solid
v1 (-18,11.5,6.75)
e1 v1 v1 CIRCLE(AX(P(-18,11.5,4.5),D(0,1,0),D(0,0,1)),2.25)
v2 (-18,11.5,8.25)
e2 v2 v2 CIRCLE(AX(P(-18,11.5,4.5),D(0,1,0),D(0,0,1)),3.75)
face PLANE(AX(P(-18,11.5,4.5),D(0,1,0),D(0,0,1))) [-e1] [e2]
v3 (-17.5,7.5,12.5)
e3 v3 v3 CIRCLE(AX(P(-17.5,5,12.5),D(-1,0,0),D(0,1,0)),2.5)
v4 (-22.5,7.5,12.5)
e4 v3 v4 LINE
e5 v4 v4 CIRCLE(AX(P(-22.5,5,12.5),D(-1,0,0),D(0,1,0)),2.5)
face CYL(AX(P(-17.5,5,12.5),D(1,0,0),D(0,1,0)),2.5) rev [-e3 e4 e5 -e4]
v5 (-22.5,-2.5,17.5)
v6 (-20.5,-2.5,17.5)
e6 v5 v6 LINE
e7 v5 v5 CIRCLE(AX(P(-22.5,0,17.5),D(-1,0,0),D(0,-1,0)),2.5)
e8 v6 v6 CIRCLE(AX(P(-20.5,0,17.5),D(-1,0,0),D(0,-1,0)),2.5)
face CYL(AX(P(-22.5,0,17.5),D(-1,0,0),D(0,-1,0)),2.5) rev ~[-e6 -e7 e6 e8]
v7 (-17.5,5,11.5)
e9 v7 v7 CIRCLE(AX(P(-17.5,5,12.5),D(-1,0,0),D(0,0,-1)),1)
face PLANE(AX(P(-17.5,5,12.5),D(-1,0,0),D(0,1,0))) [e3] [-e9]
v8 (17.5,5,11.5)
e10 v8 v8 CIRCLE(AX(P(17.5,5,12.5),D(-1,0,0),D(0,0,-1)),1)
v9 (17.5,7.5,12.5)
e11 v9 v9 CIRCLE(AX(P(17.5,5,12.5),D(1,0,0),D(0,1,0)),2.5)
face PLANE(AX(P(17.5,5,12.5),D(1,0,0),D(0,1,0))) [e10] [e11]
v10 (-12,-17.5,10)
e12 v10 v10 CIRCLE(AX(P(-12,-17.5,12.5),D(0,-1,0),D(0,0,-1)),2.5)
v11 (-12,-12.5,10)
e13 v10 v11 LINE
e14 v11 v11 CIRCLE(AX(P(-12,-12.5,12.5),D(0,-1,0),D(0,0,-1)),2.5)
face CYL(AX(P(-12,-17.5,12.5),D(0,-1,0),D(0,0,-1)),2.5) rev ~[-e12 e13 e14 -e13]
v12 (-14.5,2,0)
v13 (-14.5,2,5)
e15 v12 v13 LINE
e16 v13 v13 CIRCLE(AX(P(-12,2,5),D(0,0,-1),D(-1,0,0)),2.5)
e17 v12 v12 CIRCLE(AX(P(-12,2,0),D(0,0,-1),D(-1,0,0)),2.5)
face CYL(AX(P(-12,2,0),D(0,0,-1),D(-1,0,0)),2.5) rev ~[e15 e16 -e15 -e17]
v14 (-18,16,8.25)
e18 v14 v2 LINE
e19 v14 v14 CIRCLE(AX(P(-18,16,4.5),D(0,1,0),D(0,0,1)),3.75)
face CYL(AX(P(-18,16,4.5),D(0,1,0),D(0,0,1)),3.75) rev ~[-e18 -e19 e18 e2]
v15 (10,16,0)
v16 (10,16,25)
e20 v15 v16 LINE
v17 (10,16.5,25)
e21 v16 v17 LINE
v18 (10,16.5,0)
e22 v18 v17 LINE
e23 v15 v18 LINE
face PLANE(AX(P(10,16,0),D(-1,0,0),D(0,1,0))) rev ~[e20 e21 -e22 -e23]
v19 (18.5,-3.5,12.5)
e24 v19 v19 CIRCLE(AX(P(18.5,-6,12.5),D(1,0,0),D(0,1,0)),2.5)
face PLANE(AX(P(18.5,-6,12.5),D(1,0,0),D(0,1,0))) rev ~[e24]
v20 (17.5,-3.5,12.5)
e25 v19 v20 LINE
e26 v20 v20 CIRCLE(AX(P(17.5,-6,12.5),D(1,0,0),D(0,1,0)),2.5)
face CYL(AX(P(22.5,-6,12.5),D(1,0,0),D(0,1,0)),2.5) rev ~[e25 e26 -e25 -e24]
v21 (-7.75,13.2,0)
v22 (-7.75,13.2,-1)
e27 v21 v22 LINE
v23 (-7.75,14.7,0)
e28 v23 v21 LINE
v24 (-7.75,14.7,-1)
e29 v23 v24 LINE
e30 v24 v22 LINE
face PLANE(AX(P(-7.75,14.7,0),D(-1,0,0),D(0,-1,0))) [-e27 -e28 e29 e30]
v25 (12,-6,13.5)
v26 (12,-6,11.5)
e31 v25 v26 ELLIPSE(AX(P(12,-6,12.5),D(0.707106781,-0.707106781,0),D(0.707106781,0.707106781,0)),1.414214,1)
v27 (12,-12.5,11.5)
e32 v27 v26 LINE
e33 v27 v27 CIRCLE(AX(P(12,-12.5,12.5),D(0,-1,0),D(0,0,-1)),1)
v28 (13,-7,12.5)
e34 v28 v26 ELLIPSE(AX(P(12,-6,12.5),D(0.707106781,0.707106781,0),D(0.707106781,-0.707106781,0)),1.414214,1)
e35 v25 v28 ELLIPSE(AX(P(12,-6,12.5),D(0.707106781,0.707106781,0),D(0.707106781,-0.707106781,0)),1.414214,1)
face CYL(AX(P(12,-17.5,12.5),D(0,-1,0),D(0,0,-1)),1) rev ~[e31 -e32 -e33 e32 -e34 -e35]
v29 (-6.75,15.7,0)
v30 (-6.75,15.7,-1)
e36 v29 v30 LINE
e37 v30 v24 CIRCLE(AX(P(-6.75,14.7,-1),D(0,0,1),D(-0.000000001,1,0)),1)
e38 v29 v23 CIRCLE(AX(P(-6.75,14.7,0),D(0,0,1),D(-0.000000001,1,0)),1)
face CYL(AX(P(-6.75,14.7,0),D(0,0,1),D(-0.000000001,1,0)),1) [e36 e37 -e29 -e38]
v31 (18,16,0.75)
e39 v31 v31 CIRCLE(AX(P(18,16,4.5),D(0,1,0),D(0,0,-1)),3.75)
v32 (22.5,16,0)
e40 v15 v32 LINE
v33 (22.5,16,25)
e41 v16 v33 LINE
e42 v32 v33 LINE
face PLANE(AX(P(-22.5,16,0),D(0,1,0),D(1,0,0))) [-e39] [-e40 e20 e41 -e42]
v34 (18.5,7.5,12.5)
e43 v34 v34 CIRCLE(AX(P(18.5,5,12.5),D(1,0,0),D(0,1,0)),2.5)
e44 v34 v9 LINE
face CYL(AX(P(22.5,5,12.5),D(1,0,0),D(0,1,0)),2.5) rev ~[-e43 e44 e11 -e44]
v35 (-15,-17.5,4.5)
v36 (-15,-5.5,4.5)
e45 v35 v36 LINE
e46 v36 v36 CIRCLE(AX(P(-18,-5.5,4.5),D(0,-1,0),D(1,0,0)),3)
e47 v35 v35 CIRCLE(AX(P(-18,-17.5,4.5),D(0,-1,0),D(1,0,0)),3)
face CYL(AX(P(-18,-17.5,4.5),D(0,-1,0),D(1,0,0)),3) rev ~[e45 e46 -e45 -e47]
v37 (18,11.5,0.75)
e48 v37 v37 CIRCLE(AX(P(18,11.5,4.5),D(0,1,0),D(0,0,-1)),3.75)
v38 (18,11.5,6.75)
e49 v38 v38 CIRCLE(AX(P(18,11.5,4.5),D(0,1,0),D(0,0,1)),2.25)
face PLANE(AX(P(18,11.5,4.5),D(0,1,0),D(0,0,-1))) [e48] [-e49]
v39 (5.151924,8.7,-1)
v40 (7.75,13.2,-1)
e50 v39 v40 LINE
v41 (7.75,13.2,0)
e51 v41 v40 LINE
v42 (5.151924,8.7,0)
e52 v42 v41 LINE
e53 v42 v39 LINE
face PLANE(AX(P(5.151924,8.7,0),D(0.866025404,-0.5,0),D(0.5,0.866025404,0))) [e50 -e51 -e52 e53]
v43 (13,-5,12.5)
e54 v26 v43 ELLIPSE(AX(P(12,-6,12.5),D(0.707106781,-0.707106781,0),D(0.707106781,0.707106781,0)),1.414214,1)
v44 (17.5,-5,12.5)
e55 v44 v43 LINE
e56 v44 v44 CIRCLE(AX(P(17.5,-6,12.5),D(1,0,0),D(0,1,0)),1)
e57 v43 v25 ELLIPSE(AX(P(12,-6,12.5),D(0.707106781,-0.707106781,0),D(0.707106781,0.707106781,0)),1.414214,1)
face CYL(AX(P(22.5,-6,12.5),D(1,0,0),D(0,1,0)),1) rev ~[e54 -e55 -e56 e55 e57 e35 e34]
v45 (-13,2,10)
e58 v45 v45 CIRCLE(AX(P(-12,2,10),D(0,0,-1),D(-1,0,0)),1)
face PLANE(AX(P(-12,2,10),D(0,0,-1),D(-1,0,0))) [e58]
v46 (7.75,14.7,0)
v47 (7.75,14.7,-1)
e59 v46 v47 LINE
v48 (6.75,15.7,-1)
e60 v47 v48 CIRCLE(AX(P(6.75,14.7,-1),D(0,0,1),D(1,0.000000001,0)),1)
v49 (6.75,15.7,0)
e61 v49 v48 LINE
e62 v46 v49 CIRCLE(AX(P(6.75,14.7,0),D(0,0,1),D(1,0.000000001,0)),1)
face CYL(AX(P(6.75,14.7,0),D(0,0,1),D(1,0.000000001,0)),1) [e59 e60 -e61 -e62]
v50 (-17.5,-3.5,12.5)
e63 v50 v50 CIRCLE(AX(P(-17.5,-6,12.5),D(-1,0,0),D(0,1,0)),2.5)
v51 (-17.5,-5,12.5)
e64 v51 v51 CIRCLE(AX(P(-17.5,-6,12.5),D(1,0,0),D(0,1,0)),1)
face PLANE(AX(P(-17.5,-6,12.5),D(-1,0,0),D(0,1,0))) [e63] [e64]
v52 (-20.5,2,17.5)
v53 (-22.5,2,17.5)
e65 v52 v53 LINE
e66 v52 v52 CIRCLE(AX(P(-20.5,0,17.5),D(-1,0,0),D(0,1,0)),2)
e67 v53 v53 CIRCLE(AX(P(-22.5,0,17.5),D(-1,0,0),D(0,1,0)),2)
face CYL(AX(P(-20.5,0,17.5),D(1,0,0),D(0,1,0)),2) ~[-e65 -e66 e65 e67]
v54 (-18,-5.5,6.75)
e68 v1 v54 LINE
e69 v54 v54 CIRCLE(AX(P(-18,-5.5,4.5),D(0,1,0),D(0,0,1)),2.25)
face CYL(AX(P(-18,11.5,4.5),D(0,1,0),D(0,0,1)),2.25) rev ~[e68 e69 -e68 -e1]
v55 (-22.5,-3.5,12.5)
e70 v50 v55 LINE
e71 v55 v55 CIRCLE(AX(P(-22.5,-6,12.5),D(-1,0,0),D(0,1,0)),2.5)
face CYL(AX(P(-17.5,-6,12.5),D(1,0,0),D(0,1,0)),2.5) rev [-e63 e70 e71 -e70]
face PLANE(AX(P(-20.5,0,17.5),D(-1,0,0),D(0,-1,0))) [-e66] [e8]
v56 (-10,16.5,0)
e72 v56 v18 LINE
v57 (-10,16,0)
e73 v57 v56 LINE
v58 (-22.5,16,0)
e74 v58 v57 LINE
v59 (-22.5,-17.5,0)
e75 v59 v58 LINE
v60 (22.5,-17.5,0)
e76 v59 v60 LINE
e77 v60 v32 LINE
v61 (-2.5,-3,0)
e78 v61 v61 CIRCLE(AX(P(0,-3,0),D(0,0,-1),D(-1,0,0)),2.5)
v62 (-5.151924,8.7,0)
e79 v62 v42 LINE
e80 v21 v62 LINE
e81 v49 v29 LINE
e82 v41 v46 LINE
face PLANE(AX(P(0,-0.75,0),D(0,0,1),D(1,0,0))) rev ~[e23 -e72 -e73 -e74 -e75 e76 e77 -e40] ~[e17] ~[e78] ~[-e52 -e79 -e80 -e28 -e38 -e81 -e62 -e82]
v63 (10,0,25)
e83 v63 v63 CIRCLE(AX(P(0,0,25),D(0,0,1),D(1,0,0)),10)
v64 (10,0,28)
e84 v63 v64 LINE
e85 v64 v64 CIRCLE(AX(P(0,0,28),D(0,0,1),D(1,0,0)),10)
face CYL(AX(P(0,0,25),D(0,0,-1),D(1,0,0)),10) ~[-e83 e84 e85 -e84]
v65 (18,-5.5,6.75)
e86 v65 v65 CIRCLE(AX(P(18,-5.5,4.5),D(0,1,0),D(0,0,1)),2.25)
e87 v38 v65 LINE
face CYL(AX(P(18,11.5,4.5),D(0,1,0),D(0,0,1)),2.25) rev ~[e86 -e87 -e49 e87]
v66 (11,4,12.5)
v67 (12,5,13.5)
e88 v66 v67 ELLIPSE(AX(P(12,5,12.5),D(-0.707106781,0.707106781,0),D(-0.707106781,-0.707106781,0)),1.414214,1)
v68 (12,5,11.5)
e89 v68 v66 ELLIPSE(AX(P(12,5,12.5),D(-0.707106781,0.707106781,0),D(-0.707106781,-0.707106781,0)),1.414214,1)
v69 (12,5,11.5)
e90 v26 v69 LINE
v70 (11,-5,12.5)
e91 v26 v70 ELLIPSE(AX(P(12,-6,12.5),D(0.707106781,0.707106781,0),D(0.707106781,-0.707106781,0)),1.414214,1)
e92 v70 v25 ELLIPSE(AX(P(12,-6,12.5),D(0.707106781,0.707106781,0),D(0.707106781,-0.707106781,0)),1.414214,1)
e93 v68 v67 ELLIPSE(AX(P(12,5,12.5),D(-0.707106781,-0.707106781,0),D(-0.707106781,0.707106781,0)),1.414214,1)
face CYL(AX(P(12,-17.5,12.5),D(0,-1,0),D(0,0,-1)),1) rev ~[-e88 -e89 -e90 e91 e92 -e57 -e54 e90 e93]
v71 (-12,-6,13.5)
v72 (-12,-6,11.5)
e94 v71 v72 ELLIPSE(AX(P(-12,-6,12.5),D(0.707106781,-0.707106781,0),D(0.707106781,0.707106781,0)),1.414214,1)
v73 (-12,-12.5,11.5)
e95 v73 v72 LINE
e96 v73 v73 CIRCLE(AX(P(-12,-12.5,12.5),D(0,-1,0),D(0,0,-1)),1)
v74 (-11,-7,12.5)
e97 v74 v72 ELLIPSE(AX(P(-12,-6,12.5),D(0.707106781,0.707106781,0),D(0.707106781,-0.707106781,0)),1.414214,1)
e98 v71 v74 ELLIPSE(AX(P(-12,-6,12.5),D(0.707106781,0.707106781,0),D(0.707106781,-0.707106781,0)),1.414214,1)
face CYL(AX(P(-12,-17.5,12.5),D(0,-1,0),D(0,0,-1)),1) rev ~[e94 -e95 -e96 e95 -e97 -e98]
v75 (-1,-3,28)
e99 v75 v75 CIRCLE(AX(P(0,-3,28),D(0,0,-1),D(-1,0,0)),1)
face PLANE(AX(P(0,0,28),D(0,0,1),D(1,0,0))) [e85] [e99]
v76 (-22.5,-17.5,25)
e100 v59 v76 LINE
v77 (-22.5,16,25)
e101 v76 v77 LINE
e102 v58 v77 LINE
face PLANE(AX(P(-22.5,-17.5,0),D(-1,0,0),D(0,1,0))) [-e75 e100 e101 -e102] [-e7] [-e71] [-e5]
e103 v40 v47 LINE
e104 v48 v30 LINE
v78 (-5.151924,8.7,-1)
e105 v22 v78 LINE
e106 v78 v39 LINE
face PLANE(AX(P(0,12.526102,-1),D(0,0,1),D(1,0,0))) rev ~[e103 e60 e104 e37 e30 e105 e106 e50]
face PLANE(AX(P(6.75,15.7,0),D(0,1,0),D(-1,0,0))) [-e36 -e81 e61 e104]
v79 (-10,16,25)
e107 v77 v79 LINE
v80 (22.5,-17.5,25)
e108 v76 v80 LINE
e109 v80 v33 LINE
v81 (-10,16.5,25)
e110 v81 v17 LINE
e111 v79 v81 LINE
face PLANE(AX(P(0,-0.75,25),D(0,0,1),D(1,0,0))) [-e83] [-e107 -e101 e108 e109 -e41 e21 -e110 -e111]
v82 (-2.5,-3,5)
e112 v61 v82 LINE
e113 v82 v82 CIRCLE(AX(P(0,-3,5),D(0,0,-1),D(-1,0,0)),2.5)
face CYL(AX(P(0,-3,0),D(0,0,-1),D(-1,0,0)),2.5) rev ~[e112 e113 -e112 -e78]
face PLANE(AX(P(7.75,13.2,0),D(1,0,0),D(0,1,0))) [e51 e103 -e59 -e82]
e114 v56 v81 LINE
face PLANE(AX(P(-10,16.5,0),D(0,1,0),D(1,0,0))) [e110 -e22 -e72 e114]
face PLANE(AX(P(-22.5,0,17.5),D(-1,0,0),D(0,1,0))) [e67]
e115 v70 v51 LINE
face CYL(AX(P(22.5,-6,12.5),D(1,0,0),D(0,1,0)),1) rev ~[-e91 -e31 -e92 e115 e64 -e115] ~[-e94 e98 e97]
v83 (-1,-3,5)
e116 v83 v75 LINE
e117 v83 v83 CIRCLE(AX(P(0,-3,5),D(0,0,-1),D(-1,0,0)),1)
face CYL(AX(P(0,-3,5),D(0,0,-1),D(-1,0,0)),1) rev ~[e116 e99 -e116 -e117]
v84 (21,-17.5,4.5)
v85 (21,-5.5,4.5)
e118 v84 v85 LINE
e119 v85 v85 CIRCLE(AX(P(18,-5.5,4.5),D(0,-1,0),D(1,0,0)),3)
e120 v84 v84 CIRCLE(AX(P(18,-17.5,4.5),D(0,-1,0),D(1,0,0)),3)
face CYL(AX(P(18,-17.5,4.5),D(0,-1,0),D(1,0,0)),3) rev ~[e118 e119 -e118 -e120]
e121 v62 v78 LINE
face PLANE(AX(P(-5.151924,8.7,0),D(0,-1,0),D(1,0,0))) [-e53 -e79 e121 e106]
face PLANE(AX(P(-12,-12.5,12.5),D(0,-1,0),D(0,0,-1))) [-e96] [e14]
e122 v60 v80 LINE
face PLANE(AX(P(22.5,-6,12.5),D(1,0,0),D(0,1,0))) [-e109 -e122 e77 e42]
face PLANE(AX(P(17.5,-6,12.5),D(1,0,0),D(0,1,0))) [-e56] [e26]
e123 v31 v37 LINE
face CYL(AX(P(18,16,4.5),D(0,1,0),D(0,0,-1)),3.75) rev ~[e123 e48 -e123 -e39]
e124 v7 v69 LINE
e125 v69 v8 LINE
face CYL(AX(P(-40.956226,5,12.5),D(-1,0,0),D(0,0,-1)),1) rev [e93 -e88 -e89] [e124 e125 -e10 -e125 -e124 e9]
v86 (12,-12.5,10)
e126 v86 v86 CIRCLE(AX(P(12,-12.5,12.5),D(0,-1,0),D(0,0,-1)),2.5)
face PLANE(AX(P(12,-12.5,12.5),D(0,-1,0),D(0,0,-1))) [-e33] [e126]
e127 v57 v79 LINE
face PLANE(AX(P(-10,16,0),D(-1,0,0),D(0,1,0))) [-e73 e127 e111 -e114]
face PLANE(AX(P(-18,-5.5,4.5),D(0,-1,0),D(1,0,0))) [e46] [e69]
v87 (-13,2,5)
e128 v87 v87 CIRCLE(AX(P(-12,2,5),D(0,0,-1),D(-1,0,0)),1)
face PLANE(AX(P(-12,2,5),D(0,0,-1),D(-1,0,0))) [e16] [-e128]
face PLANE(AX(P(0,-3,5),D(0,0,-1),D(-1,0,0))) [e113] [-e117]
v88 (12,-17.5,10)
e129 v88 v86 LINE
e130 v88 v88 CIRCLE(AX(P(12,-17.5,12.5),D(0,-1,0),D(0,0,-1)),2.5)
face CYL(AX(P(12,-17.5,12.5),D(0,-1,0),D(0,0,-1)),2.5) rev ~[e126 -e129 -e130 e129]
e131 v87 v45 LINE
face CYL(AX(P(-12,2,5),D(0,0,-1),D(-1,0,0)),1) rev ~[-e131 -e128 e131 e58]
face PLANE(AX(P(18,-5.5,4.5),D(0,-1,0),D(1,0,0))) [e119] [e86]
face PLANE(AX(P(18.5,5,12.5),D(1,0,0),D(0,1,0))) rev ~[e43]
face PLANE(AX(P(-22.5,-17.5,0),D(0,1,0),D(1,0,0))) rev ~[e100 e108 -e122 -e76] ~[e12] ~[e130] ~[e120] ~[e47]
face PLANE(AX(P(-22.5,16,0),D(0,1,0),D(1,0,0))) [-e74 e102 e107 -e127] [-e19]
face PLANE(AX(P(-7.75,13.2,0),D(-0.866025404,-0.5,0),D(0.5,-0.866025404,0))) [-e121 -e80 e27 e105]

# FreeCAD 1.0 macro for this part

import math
import FreeCAD as App
import Part
import Sketcher
Q = App.Units.Quantity

doc = App.newDocument("Part")
body = doc.addObject("PartDesign::Body", "Body")

sketch1 = body.newObject("Sketcher::SketchObject", "Sketch")
sketch1.AttachmentSupport = (doc.getObject("XY_Plane"), [""])
sketch1.MapMode = "FlatFace"
sketch1.addGeometry(Part.LineSegment(App.Vector(-22.5, 16, 0), App.Vector(-22.5, -17.5, 0)), False)
sketch1.addGeometry(Part.LineSegment(App.Vector(-22.5, -17.5, 0), App.Vector(22.5, -17.5, 0)), False)
sketch1.addGeometry(Part.LineSegment(App.Vector(22.5, -17.5, 0), App.Vector(22.5, 16, 0)), False)
sketch1.addGeometry(Part.LineSegment(App.Vector(22.5, 16, 0), App.Vector(-22.5, 16, 0)), False)
sketch1.addConstraint(Sketcher.Constraint("Coincident", 0, 2, 1, 1))
sketch1.addConstraint(Sketcher.Constraint("Coincident", 1, 2, 2, 1))
sketch1.addConstraint(Sketcher.Constraint("Coincident", 2, 2, 3, 1))
sketch1.addConstraint(Sketcher.Constraint("Coincident", 3, 2, 0, 1))
sketch1.addConstraint(Sketcher.Constraint("Vertical", 0))
sketch1.addConstraint(Sketcher.Constraint("Horizontal", 1))
sketch1.addConstraint(Sketcher.Constraint("Vertical", 2))
sketch1.addConstraint(Sketcher.Constraint("Horizontal", 3))
sketch1.addConstraint(Sketcher.Constraint("DistanceX", 1, 1, 1, 2, Q("45 mm")))
sketch1.addConstraint(Sketcher.Constraint("DistanceY", 0, 2, 0, 1, Q("33.5 mm")))
sketch1.addConstraint(Sketcher.Constraint("DistanceY", -1, 1, 2, 2, Q("16 mm")))
sketch1.addConstraint(Sketcher.Constraint("DistanceX", 0, 2, -1, 1, Q("22.5 mm")))
pad1 = body.newObject("PartDesign::Pad", "Pad")
pad1.Profile = sketch1
pad1.Length = 25

sketch2 = body.newObject("Sketcher::SketchObject", "Sketch001")
sketch2.AttachmentSupport = (doc.getObject("XY_Plane"), [""])
sketch2.MapMode = "FlatFace"
sketch2.addGeometry(Part.LineSegment(App.Vector(-10, 16.5, 0), App.Vector(-10, 16, 0)), False)
sketch2.addGeometry(Part.LineSegment(App.Vector(-10, 16, 0), App.Vector(10, 16, 0)), False)
sketch2.addGeometry(Part.LineSegment(App.Vector(10, 16, 0), App.Vector(10, 16.5, 0)), False)
sketch2.addGeometry(Part.LineSegment(App.Vector(10, 16.5, 0), App.Vector(-10, 16.5, 0)), False)
sketch2.addConstraint(Sketcher.Constraint("Coincident", 0, 2, 1, 1))
sketch2.addConstraint(Sketcher.Constraint("Coincident", 1, 2, 2, 1))
sketch2.addConstraint(Sketcher.Constraint("Coincident", 2, 2, 3, 1))
sketch2.addConstraint(Sketcher.Constraint("Coincident", 3, 2, 0, 1))
sketch2.addConstraint(Sketcher.Constraint("Vertical", 0))
sketch2.addConstraint(Sketcher.Constraint("Horizontal", 1))
sketch2.addConstraint(Sketcher.Constraint("Vertical", 2))
sketch2.addConstraint(Sketcher.Constraint("Horizontal", 3))
sketch2.addConstraint(Sketcher.Constraint("DistanceX", 1, 1, 1, 2, Q("20 mm")))
sketch2.addConstraint(Sketcher.Constraint("DistanceY", 0, 2, 0, 1, Q("0.5 mm")))
sketch2.addConstraint(Sketcher.Constraint("DistanceX", 0, 2, -1, 1, Q("10 mm")))
sketch2.addConstraint(Sketcher.Constraint("DistanceY", -1, 1, 0, 2, Q("16 mm")))
pad2 = body.newObject("PartDesign::Pad", "Pad001")
pad2.Profile = sketch2
pad2.Length = 25

sketch3 = body.newObject("Sketcher::SketchObject", "Sketch002")
sketch3.AttachmentSupport = (doc.getObject("XY_Plane"), [""])
sketch3.MapMode = "FlatFace"
sketch3.AttachmentOffset = App.Placement(App.Vector(0, 0, 25), App.Rotation())
sketch3.addGeometry(Part.Circle(App.Vector(0, 0, 0), App.Vector(0, 0, 1), 10), False)
sketch3.addConstraint(Sketcher.Constraint("Coincident", 0, 3, -1, 1))
sketch3.addConstraint(Sketcher.Constraint("Diameter", 0, Q("20 mm")))
pad3 = body.newObject("PartDesign::Pad", "Pad002")
pad3.Profile = sketch3
pad3.Length = 3

sketch4 = body.newObject("Sketcher::SketchObject", "Sketch003")
sketch4.AttachmentSupport = (doc.getObject("XZ_Plane"), [""])
sketch4.MapMode = "FlatFace"
sketch4.AttachmentOffset = App.Placement(App.Vector(0, 0, -16), App.Rotation())
sketch4.addGeometry(Part.Circle(App.Vector(-18, 4.5, 0), App.Vector(0, 0, 1), 3.75), False)
sketch4.addGeometry(Part.Circle(App.Vector(18, 4.5, 0), App.Vector(0, 0, 1), 3.75), False)
sketch4.addConstraint(Sketcher.Constraint("Equal", 0, 1))
sketch4.addConstraint(Sketcher.Constraint("Symmetric", 0, 3, 1, 3, -2))
sketch4.addConstraint(Sketcher.Constraint("Diameter", 0, Q("7.5 mm")))
sketch4.addConstraint(Sketcher.Constraint("DistanceX", 0, 3, -1, 1, Q("18 mm")))
sketch4.addConstraint(Sketcher.Constraint("DistanceY", -1, 1, 0, 3, Q("4.5 mm")))
pocket1 = body.newObject("PartDesign::Pocket", "Pocket")
pocket1.Profile = sketch4
pocket1.Length = 4.5
pocket1.Reversed = True

sketch5 = body.newObject("Sketcher::SketchObject", "Sketch004")
sketch5.AttachmentSupport = (doc.getObject("XZ_Plane"), [""])
sketch5.MapMode = "FlatFace"
sketch5.AttachmentOffset = App.Placement(App.Vector(0, 0, -11.5), App.Rotation())
sketch5.addGeometry(Part.Circle(App.Vector(18, 4.5, 0), App.Vector(0, 0, 1), 2.25), False)
sketch5.addGeometry(Part.Circle(App.Vector(-18, 4.5, 0), App.Vector(0, 0, 1), 2.25), False)
sketch5.addConstraint(Sketcher.Constraint("Equal", 0, 1))
sketch5.addConstraint(Sketcher.Constraint("Symmetric", 0, 3, 1, 3, -2))
sketch5.addConstraint(Sketcher.Constraint("Diameter", 0, Q("4.5 mm")))
sketch5.addConstraint(Sketcher.Constraint("DistanceX", -1, 1, 0, 3, Q("18 mm")))
sketch5.addConstraint(Sketcher.Constraint("DistanceY", -1, 1, 0, 3, Q("4.5 mm")))
pocket2 = body.newObject("PartDesign::Pocket", "Pocket001")
pocket2.Profile = sketch5
pocket2.Type = "ThroughAll"
pocket2.Reversed = True

sketch6 = body.newObject("Sketcher::SketchObject", "Sketch005")
sketch6.AttachmentSupport = (doc.getObject("YZ_Plane"), [""])
sketch6.MapMode = "FlatFace"
sketch6.addGeometry(Part.Circle(App.Vector(5, 12.5, 0), App.Vector(0, 0, 1), 1), False)
sketch6.addConstraint(Sketcher.Constraint("Diameter", 0, Q("2 mm")))
sketch6.addConstraint(Sketcher.Constraint("DistanceX", -1, 1, 0, 3, Q("5 mm")))
sketch6.addConstraint(Sketcher.Constraint("DistanceY", -1, 1, 0, 3, Q("12.5 mm")))
pocket3 = body.newObject("PartDesign::Pocket", "Pocket002")
pocket3.Profile = sketch6
pocket3.Type = "ThroughAll"
pocket3.Midplane = True

sketch7 = body.newObject("Sketcher::SketchObject", "Sketch006")
sketch7.AttachmentSupport = (doc.getObject("YZ_Plane"), [""])
sketch7.MapMode = "FlatFace"
sketch7.AttachmentOffset = App.Placement(App.Vector(0, 0, 22.5), App.Rotation())
sketch7.addGeometry(Part.Circle(App.Vector(-6, 12.5, 0), App.Vector(0, 0, 1), 1), False)
sketch7.addConstraint(Sketcher.Constraint("Diameter", 0, Q("2 mm")))
sketch7.addConstraint(Sketcher.Constraint("DistanceX", 0, 3, -1, 1, Q("6 mm")))
sketch7.addConstraint(Sketcher.Constraint("DistanceY", -1, 1, 0, 3, Q("12.5 mm")))
pocket4 = body.newObject("PartDesign::Pocket", "Pocket003")
pocket4.Profile = sketch7
pocket4.Type = "ThroughAll"

sketch8 = body.newObject("Sketcher::SketchObject", "Sketch007")
sketch8.AttachmentSupport = (doc.getObject("YZ_Plane"), [""])
sketch8.MapMode = "FlatFace"
sketch8.AttachmentOffset = App.Placement(App.Vector(0, 0, 22.5), App.Rotation())
sketch8.addGeometry(Part.Circle(App.Vector(5, 12.5, 0), App.Vector(0, 0, 1), 2.5), False)
sketch8.addConstraint(Sketcher.Constraint("Diameter", 0, Q("5 mm")))
sketch8.addConstraint(Sketcher.Constraint("DistanceX", -1, 1, 0, 3, Q("5 mm")))
sketch8.addConstraint(Sketcher.Constraint("DistanceY", -1, 1, 0, 3, Q("12.5 mm")))
pocket5 = body.newObject("PartDesign::Pocket", "Pocket004")
pocket5.Profile = sketch8
pocket5.Length = 5

sketch9 = body.newObject("Sketcher::SketchObject", "Sketch008")
sketch9.AttachmentSupport = (doc.getObject("YZ_Plane"), [""])
sketch9.MapMode = "FlatFace"
sketch9.AttachmentOffset = App.Placement(App.Vector(0, 0, -17.5), App.Rotation())
sketch9.addGeometry(Part.Circle(App.Vector(5, 12.5, 0), App.Vector(0, 0, 1), 2.5), False)
sketch9.addConstraint(Sketcher.Constraint("Diameter", 0, Q("5 mm")))
sketch9.addConstraint(Sketcher.Constraint("DistanceX", -1, 1, 0, 3, Q("5 mm")))
sketch9.addConstraint(Sketcher.Constraint("DistanceY", -1, 1, 0, 3, Q("12.5 mm")))
pocket6 = body.newObject("PartDesign::Pocket", "Pocket005")
pocket6.Profile = sketch9
pocket6.Length = 5

sketch10 = body.newObject("Sketcher::SketchObject", "Sketch009")
sketch10.AttachmentSupport = (doc.getObject("YZ_Plane"), [""])
sketch10.MapMode = "FlatFace"
sketch10.AttachmentOffset = App.Placement(App.Vector(0, 0, 22.5), App.Rotation())
sketch10.addGeometry(Part.Circle(App.Vector(-6, 12.5, 0), App.Vector(0, 0, 1), 2.5), False)
sketch10.addConstraint(Sketcher.Constraint("Diameter", 0, Q("5 mm")))
sketch10.addConstraint(Sketcher.Constraint("DistanceX", 0, 3, -1, 1, Q("6 mm")))
sketch10.addConstraint(Sketcher.Constraint("DistanceY", -1, 1, 0, 3, Q("12.5 mm")))
pocket7 = body.newObject("PartDesign::Pocket", "Pocket006")
pocket7.Profile = sketch10
pocket7.Length = 5

sketch11 = body.newObject("Sketcher::SketchObject", "Sketch010")
sketch11.AttachmentSupport = (doc.getObject("YZ_Plane"), [""])
sketch11.MapMode = "FlatFace"
sketch11.AttachmentOffset = App.Placement(App.Vector(0, 0, -17.5), App.Rotation())
sketch11.addGeometry(Part.Circle(App.Vector(-6, 12.5, 0), App.Vector(0, 0, 1), 2.5), False)
sketch11.addConstraint(Sketcher.Constraint("Diameter", 0, Q("5 mm")))
sketch11.addConstraint(Sketcher.Constraint("DistanceX", 0, 3, -1, 1, Q("6 mm")))
sketch11.addConstraint(Sketcher.Constraint("DistanceY", -1, 1, 0, 3, Q("12.5 mm")))
pocket8 = body.newObject("PartDesign::Pocket", "Pocket007")
pocket8.Profile = sketch11
pocket8.Length = 5

sketch12 = body.newObject("Sketcher::SketchObject", "Sketch011")
sketch12.AttachmentSupport = (doc.getObject("YZ_Plane"), [""])
sketch12.MapMode = "FlatFace"
sketch12.AttachmentOffset = App.Placement(App.Vector(0, 0, -22.5), App.Rotation())
sketch12.addGeometry(Part.Circle(App.Vector(0, 17.5, 0), App.Vector(0, 0, 1), 2.5), False)
sketch12.addConstraint(Sketcher.Constraint("PointOnObject", 0, 3, -2))
sketch12.addConstraint(Sketcher.Constraint("Diameter", 0, Q("5 mm")))
sketch12.addConstraint(Sketcher.Constraint("DistanceY", -1, 1, 0, 3, Q("17.5 mm")))
pocket9 = body.newObject("PartDesign::Pocket", "Pocket008")
pocket9.Profile = sketch12
pocket9.Length = 2
pocket9.Reversed = True

sketch13 = body.newObject("Sketcher::SketchObject", "Sketch012")
sketch13.AttachmentSupport = (doc.getObject("YZ_Plane"), [""])
sketch13.MapMode = "FlatFace"
sketch13.AttachmentOffset = App.Placement(App.Vector(0, 0, -20.5), App.Rotation())
sketch13.addGeometry(Part.Circle(App.Vector(0, 17.5, 0), App.Vector(0, 0, 1), 2), False)
sketch13.addConstraint(Sketcher.Constraint("PointOnObject", 0, 3, -2))
sketch13.addConstraint(Sketcher.Constraint("Diameter", 0, Q("4 mm")))
sketch13.addConstraint(Sketcher.Constraint("DistanceY", -1, 1, 0, 3, Q("17.5 mm")))
pad4 = body.newObject("PartDesign::Pad", "Pad003")
pad4.Profile = sketch13
pad4.Length = 2
pad4.Reversed = True

sketch14 = body.newObject("Sketcher::SketchObject", "Sketch013")
sketch14.AttachmentSupport = (doc.getObject("YZ_Plane"), [""])
sketch14.MapMode = "FlatFace"
sketch14.AttachmentOffset = App.Placement(App.Vector(0, 0, 22.5), App.Rotation())
sketch14.addGeometry(Part.Circle(App.Vector(5, 12.5, 0), App.Vector(0, 0, 1), 2.5), False)
sketch14.addConstraint(Sketcher.Constraint("Diameter", 0, Q("5 mm")))
sketch14.addConstraint(Sketcher.Constraint("DistanceX", -1, 1, 0, 3, Q("5 mm")))
sketch14.addConstraint(Sketcher.Constraint("DistanceY", -1, 1, 0, 3, Q("12.5 mm")))
pad5 = body.newObject("PartDesign::Pad", "Pad004")
pad5.Profile = sketch14
pad5.Length = 4
pad5.Reversed = True

sketch15 = body.newObject("Sketcher::SketchObject", "Sketch014")
sketch15.AttachmentSupport = (doc.getObject("YZ_Plane"), [""])
sketch15.MapMode = "FlatFace"
sketch15.AttachmentOffset = App.Placement(App.Vector(0, 0, 22.5), App.Rotation())
sketch15.addGeometry(Part.Circle(App.Vector(-6, 12.5, 0), App.Vector(0, 0, 1), 2.5), False)
sketch15.addConstraint(Sketcher.Constraint("Diameter", 0, Q("5 mm")))
sketch15.addConstraint(Sketcher.Constraint("DistanceX", 0, 3, -1, 1, Q("6 mm")))
sketch15.addConstraint(Sketcher.Constraint("DistanceY", -1, 1, 0, 3, Q("12.5 mm")))
pad6 = body.newObject("PartDesign::Pad", "Pad005")
pad6.Profile = sketch15
pad6.Length = 4
pad6.Reversed = True

sketch16 = body.newObject("Sketcher::SketchObject", "Sketch015")
sketch16.AttachmentSupport = (doc.getObject("XY_Plane"), [""])
sketch16.MapMode = "FlatFace"
sketch16.addGeometry(Part.Circle(App.Vector(0, -3, 0), App.Vector(0, 0, 1), 2.5), False)
sketch16.addConstraint(Sketcher.Constraint("PointOnObject", 0, 3, -2))
sketch16.addConstraint(Sketcher.Constraint("Diameter", 0, Q("5 mm")))
sketch16.addConstraint(Sketcher.Constraint("DistanceY", 0, 3, -1, 1, Q("3 mm")))
pocket10 = body.newObject("PartDesign::Pocket", "Pocket009")
pocket10.Profile = sketch16
pocket10.Length = 5
pocket10.Reversed = True

sketch17 = body.newObject("Sketcher::SketchObject", "Sketch016")
sketch17.AttachmentSupport = (doc.getObject("XY_Plane"), [""])
sketch17.MapMode = "FlatFace"
sketch17.AttachmentOffset = App.Placement(App.Vector(0, 0, 5), App.Rotation())
sketch17.addGeometry(Part.Circle(App.Vector(0, -3, 0), App.Vector(0, 0, 1), 1), False)
sketch17.addConstraint(Sketcher.Constraint("PointOnObject", 0, 3, -2))
sketch17.addConstraint(Sketcher.Constraint("Diameter", 0, Q("2 mm")))
sketch17.addConstraint(Sketcher.Constraint("DistanceY", 0, 3, -1, 1, Q("3 mm")))
pocket11 = body.newObject("PartDesign::Pocket", "Pocket010")
pocket11.Profile = sketch17
pocket11.Type = "ThroughAll"
pocket11.Reversed = True

sketch18 = body.newObject("Sketcher::SketchObject", "Sketch017")
sketch18.AttachmentSupport = (doc.getObject("XY_Plane"), [""])
sketch18.MapMode = "FlatFace"
sketch18.addGeometry(Part.Circle(App.Vector(-12, 2, 0), App.Vector(0, 0, 1), 2.5), False)
sketch18.addConstraint(Sketcher.Constraint("Diameter", 0, Q("5 mm")))
sketch18.addConstraint(Sketcher.Constraint("DistanceX", 0, 3, -1, 1, Q("12 mm")))
sketch18.addConstraint(Sketcher.Constraint("DistanceY", -1, 1, 0, 3, Q("2 mm")))
pocket12 = body.newObject("PartDesign::Pocket", "Pocket011")
pocket12.Profile = sketch18
pocket12.Length = 5
pocket12.Reversed = True

sketch19 = body.newObject("Sketcher::SketchObject", "Sketch018")
sketch19.AttachmentSupport = (doc.getObject("XY_Plane"), [""])
sketch19.MapMode = "FlatFace"
sketch19.AttachmentOffset = App.Placement(App.Vector(0, 0, 5), App.Rotation())
sketch19.addGeometry(Part.Circle(App.Vector(-12, 2, 0), App.Vector(0, 0, 1), 1), False)
sketch19.addConstraint(Sketcher.Constraint("Diameter", 0, Q("2 mm")))
sketch19.addConstraint(Sketcher.Constraint("DistanceX", 0, 3, -1, 1, Q("12 mm")))
sketch19.addConstraint(Sketcher.Constraint("DistanceY", -1, 1, 0, 3, Q("2 mm")))
pocket13 = body.newObject("PartDesign::Pocket", "Pocket012")
pocket13.Profile = sketch19
pocket13.Length = 5
pocket13.Reversed = True

sketch20 = body.newObject("Sketcher::SketchObject", "Sketch019")
sketch20.AttachmentSupport = (doc.getObject("XY_Plane"), [""])
sketch20.MapMode = "FlatFace"
sketch20.addGeometry(Part.LineSegment(App.Vector(-6.75, 15.7, 0), App.Vector(6.75, 15.7, 0)), False)
sketch20.addGeometry(Part.ArcOfCircle(Part.Circle(App.Vector(6.75, 14.7, 0), App.Vector(0, 0, 1), 1), math.radians(0), math.radians(90)), False)
sketch20.addGeometry(Part.LineSegment(App.Vector(7.75, 14.7, 0), App.Vector(7.75, 13.2, 0)), False)
sketch20.addGeometry(Part.LineSegment(App.Vector(7.75, 13.2, 0), App.Vector(5.151924, 8.7, 0)), False)
sketch20.addGeometry(Part.LineSegment(App.Vector(5.151924, 8.7, 0), App.Vector(-5.151924, 8.7, 0)), False)
sketch20.addGeometry(Part.LineSegment(App.Vector(-5.151924, 8.7, 0), App.Vector(-7.75, 13.2, 0)), False)
sketch20.addGeometry(Part.LineSegment(App.Vector(-7.75, 13.2, 0), App.Vector(-7.75, 14.7, 0)), False)
sketch20.addGeometry(Part.ArcOfCircle(Part.Circle(App.Vector(-6.75, 14.7, 0), App.Vector(0, 0, 1), 1), math.radians(90), math.radians(180)), False)
sketch20.addConstraint(Sketcher.Constraint("Tangent", 0, 2, 1, 2))
sketch20.addConstraint(Sketcher.Constraint("Tangent", 1, 1, 2, 1))
sketch20.addConstraint(Sketcher.Constraint("Coincident", 2, 2, 3, 1))
sketch20.addConstraint(Sketcher.Constraint("Coincident", 3, 2, 4, 1))
sketch20.addConstraint(Sketcher.Constraint("Coincident", 4, 2, 5, 1))
sketch20.addConstraint(Sketcher.Constraint("Coincident", 5, 2, 6, 1))
sketch20.addConstraint(Sketcher.Constraint("Tangent", 6, 2, 7, 2))
sketch20.addConstraint(Sketcher.Constraint("Tangent", 7, 1, 0, 1))
sketch20.addConstraint(Sketcher.Constraint("Horizontal", 0))
sketch20.addConstraint(Sketcher.Constraint("Vertical", 2))
sketch20.addConstraint(Sketcher.Constraint("Horizontal", 4))
sketch20.addConstraint(Sketcher.Constraint("Vertical", 6))
sketch20.addConstraint(Sketcher.Constraint("Equal", 1, 7))
sketch20.addConstraint(Sketcher.Constraint("Symmetric", 2, 2, 5, 2, -2))
sketch20.addConstraint(Sketcher.Constraint("Equal", 3, 5))
sketch20.addConstraint(Sketcher.Constraint("Radius", 1, Q("1 mm")))
sketch20.addConstraint(Sketcher.Constraint("Angle", 3, Q("-120 deg")))
sketch20.addConstraint(Sketcher.Constraint("DistanceX", 0, 1, 0, 2, Q("13.5 mm")))
sketch20.addConstraint(Sketcher.Constraint("DistanceY", 2, 2, 2, 1, Q("1.5 mm")))
sketch20.addConstraint(Sketcher.Constraint("DistanceY", 3, 2, 1, 3, Q("6 mm")))
sketch20.addConstraint(Sketcher.Constraint("DistanceY", -1, 1, 1, 3, Q("14.7 mm")))
pad7 = body.newObject("PartDesign::Pad", "Pad006")
pad7.Profile = sketch20
pad7.Length = 1
pad7.Reversed = True

sketch21 = body.newObject("Sketcher::SketchObject", "Sketch020")
sketch21.AttachmentSupport = (doc.getObject("XZ_Plane"), [""])
sketch21.MapMode = "FlatFace"
sketch21.AttachmentOffset = App.Placement(App.Vector(0, 0, 17.5), App.Rotation())
sketch21.addGeometry(Part.Circle(App.Vector(12, 12.5, 0), App.Vector(0, 0, 1), 2.5), False)
sketch21.addGeometry(Part.Circle(App.Vector(-12, 12.5, 0), App.Vector(0, 0, 1), 2.5), False)
sketch21.addConstraint(Sketcher.Constraint("Equal", 0, 1))
sketch21.addConstraint(Sketcher.Constraint("Symmetric", 0, 3, 1, 3, -2))
sketch21.addConstraint(Sketcher.Constraint("Diameter", 0, Q("5 mm")))
sketch21.addConstraint(Sketcher.Constraint("DistanceX", -1, 1, 0, 3, Q("12 mm")))
sketch21.addConstraint(Sketcher.Constraint("DistanceY", -1, 1, 0, 3, Q("12.5 mm")))
pocket14 = body.newObject("PartDesign::Pocket", "Pocket013")
pocket14.Profile = sketch21
pocket14.Length = 5

sketch22 = body.newObject("Sketcher::SketchObject", "Sketch021")
sketch22.AttachmentSupport = (doc.getObject("XZ_Plane"), [""])
sketch22.MapMode = "FlatFace"
sketch22.AttachmentOffset = App.Placement(App.Vector(0, 0, 17.5), App.Rotation())
sketch22.addGeometry(Part.Circle(App.Vector(12, 12.5, 0), App.Vector(0, 0, 1), 1), False)
sketch22.addConstraint(Sketcher.Constraint("Diameter", 0, Q("2 mm")))
sketch22.addConstraint(Sketcher.Constraint("DistanceX", -1, 1, 0, 3, Q("12 mm")))
sketch22.addConstraint(Sketcher.Constraint("DistanceY", -1, 1, 0, 3, Q("12.5 mm")))
pocket15 = body.newObject("PartDesign::Pocket", "Pocket014")
pocket15.Profile = sketch22
pocket15.Length = 22.5

sketch23 = body.newObject("Sketcher::SketchObject", "Sketch022")
sketch23.AttachmentSupport = (doc.getObject("XZ_Plane"), [""])
sketch23.MapMode = "FlatFace"
sketch23.AttachmentOffset = App.Placement(App.Vector(0, 0, 17.5), App.Rotation())
sketch23.addGeometry(Part.Circle(App.Vector(-12, 12.5, 0), App.Vector(0, 0, 1), 1), False)
sketch23.addConstraint(Sketcher.Constraint("Diameter", 0, Q("2 mm")))
sketch23.addConstraint(Sketcher.Constraint("DistanceX", 0, 3, -1, 1, Q("12 mm")))
sketch23.addConstraint(Sketcher.Constraint("DistanceY", -1, 1, 0, 3, Q("12.5 mm")))
pocket16 = body.newObject("PartDesign::Pocket", "Pocket015")
pocket16.Profile = sketch23
pocket16.Length = 11.5

sketch24 = body.newObject("Sketcher::SketchObject", "Sketch023")
sketch24.AttachmentSupport = (doc.getObject("XZ_Plane"), [""])
sketch24.MapMode = "FlatFace"
sketch24.AttachmentOffset = App.Placement(App.Vector(0, 0, 17.5), App.Rotation())
sketch24.addGeometry(Part.Circle(App.Vector(-18, 4.5, 0), App.Vector(0, 0, 1), 3), False)
sketch24.addGeometry(Part.Circle(App.Vector(18, 4.5, 0), App.Vector(0, 0, 1), 3), False)
sketch24.addConstraint(Sketcher.Constraint("Equal", 0, 1))
sketch24.addConstraint(Sketcher.Constraint("Symmetric", 0, 3, 1, 3, -2))
sketch24.addConstraint(Sketcher.Constraint("Diameter", 0, Q("6 mm")))
sketch24.addConstraint(Sketcher.Constraint("DistanceX", 0, 3, -1, 1, Q("18 mm")))
sketch24.addConstraint(Sketcher.Constraint("DistanceY", -1, 1, 0, 3, Q("4.5 mm")))
pocket17 = body.newObject("PartDesign::Pocket", "Pocket016")
pocket17.Profile = sketch24
pocket17.Length = 12

doc.recompute()
